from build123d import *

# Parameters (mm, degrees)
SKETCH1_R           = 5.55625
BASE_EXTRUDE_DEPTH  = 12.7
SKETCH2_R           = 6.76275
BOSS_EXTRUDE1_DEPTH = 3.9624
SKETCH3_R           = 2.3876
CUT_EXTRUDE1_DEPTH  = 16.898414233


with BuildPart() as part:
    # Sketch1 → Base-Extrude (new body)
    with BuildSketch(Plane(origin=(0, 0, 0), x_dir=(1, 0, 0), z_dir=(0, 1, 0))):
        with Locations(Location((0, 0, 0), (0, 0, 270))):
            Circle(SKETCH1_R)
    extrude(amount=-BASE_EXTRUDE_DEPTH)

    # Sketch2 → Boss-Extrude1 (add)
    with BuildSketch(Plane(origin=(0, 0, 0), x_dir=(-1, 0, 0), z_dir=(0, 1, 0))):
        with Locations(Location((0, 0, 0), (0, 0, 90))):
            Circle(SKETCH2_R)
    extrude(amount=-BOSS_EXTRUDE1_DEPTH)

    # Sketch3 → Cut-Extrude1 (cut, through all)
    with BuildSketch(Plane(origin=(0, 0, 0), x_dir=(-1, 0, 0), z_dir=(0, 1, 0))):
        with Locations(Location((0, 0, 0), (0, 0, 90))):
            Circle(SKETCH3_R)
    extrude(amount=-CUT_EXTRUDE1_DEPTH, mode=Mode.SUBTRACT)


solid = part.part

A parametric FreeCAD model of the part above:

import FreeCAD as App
import Part
import Sketcher
Q = App.Units.Quantity

doc = App.newDocument("Part")
params = doc.addObject("Spreadsheet::Sheet", "Params")
for row, (alias, value) in enumerate([
    ("sketch1_diameter", "0.4375 in"),
    ("pad1_length", "0.5 in"),
    ("pad2_length", "0.156 in"),
    ("sketch3_diameter", "0.188 in"),
], start=1):
    params.set(f"A{row}", alias)
    params.set(f"B{row}", "=" + value)
    params.setAlias(f"B{row}", alias)

body = doc.addObject("PartDesign::Body", "Body")

# Sketch on XZ plane
sketch1 = doc.addObject("Sketcher::SketchObject", "Sketch")
body.addObject(sketch1)
sketch1.AttachmentSupport = (doc.XZ_Plane, [""])
sketch1.MapMode = "FlatFace"
sketch1.addGeometry(Part.Circle(App.Vector(0, 0, 0), App.Vector(0, 0, 1), 6), False)
sketch1.addConstraint(Sketcher.Constraint("Coincident", 0, 3, -1, 1))
sketch1.addConstraint(Sketcher.Constraint("Diameter", 0, Q("0.4375 in")))
sketch1.setExpression("Constraints[1]", "Params.sketch1_diameter")
pad1 = doc.addObject("PartDesign::Pad", "Pad")
body.addObject(pad1)
pad1.Profile = sketch1
pad1.setExpression("Length", "Params.pad1_length")

# Sketch on XZ plane
sketch2 = doc.addObject("Sketcher::SketchObject", "Sketch001")
body.addObject(sketch2)
sketch2.AttachmentSupport = (doc.XZ_Plane, [""])
sketch2.MapMode = "FlatFace"
sketch2.addGeometry(Part.Circle(App.Vector(0, 0, 0), App.Vector(0, 0, 1), 7), False)
sketch2.addConstraint(Sketcher.Constraint("Coincident", 0, 3, -1, 1))
sketch2.addConstraint(Sketcher.Constraint("Diameter", 0, Q("0.5325 in")))
pad2 = doc.addObject("PartDesign::Pad", "Pad001")
body.addObject(pad2)
pad2.Profile = sketch2
pad2.setExpression("Length", "Params.pad2_length")

# Sketch on XZ plane
sketch3 = doc.addObject("Sketcher::SketchObject", "Sketch002")
body.addObject(sketch3)
sketch3.AttachmentSupport = (doc.XZ_Plane, [""])
sketch3.MapMode = "FlatFace"
sketch3.addGeometry(Part.Circle(App.Vector(0, 0, 0), App.Vector(0, 0, 1), 2.4), False)
sketch3.addConstraint(Sketcher.Constraint("Coincident", 0, 3, -1, 1))
sketch3.addConstraint(Sketcher.Constraint("Diameter", 0, Q("0.188 in")))
sketch3.setExpression("Constraints[1]", "Params.sketch3_diameter")
pocket1 = doc.addObject("PartDesign::Pocket", "Pocket")
body.addObject(pocket1)
pocket1.Profile = sketch3
pocket1.Type = "ThroughAll"
pocket1.Reversed = True

doc.recompute()
